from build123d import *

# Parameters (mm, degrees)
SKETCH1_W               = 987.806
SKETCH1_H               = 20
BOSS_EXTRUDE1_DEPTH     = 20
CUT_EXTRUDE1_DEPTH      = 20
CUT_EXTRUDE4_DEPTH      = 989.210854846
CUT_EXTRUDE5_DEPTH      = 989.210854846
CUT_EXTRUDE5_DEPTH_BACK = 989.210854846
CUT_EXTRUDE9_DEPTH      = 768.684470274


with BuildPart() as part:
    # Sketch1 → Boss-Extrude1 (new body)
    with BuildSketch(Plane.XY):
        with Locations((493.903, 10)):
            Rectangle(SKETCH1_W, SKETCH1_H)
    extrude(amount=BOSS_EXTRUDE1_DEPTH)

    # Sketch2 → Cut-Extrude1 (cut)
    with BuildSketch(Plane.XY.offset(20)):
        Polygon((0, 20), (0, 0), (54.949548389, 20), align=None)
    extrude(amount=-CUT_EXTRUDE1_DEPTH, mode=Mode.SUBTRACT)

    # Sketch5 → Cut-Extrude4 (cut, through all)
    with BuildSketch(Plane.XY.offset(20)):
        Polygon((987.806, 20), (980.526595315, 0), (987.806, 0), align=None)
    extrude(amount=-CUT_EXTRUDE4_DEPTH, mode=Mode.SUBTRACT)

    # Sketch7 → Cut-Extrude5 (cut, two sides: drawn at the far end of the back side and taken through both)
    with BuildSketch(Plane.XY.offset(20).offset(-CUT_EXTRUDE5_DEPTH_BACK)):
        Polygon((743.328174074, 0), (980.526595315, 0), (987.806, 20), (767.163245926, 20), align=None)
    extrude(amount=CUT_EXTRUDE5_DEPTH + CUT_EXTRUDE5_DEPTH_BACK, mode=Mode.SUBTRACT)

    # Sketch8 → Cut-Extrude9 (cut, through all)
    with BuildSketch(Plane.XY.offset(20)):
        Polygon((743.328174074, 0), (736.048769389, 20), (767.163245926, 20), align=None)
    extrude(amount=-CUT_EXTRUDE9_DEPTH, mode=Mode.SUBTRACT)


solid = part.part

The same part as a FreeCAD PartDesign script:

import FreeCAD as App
import Part
import Sketcher
from FreeCAD import Vector
Q = App.Units.Quantity


def add_polygon(sketch, points):
    """Adds a closed chain of lines whose ends are joined by coincident constraints."""
    first, n = sketch.GeometryCount, len(points)
    for a, b in zip(points, points[1:] + points[:1]):
        sketch.addGeometry(Part.LineSegment(App.Vector(*a, 0), App.Vector(*b, 0)), False)
    for i in range(n):
        sketch.addConstraint(Sketcher.Constraint("Coincident", first + i, 2, first + (i + 1) % n, 1))

doc = App.newDocument("Part")
params = doc.addObject("Spreadsheet::Sheet", "Params")
for row, (alias, value) in enumerate([
    ("sketch1_height", "20 mm"),
    ("pad1_length", "20 mm"),
    ("sketch2_height", "20 mm"),
    ("pocket1_length", "20 mm"),
    ("sketch3_height", "20 mm"),
], start=1):
    params.set(f"A{row}", alias)
    params.set(f"B{row}", "=" + value)
    params.setAlias(f"B{row}", alias)

body = doc.addObject("PartDesign::Body", "Body")

# Sketch on XY plane
sketch1 = body.newObject("Sketcher::SketchObject", "Sketch")
sketch1.AttachmentSupport = (doc.getObject("XY_Plane"), [""])
sketch1.MapMode = "FlatFace"
add_polygon(sketch1, [(0, 20), (0, 0), (988, 0), (988, 20)])  # lines 0-3
sketch1.addConstraint(Sketcher.Constraint("Vertical", 0))
sketch1.addConstraint(Sketcher.Constraint("Horizontal", 1))
sketch1.addConstraint(Sketcher.Constraint("Vertical", 2))
sketch1.addConstraint(Sketcher.Constraint("Horizontal", 3))
sketch1.addConstraint(Sketcher.Constraint("Coincident", 0, 2, -1, 1))
sketch1.addConstraint(Sketcher.Constraint("DistanceY", 0, 2, 0, 1, Q("20 mm")))
sketch1.addConstraint(Sketcher.Constraint("DistanceX", 1, 1, 1, 2, Q("987.806 mm")))
sketch1.setExpression("Constraints[9]", "Params.sketch1_height")
pad1 = body.newObject("PartDesign::Pad", "Pad")
pad1.Profile = sketch1
pad1.setExpression("Length", "Params.pad1_length")

# Sketch on XY plane
sketch2 = body.newObject("Sketcher::SketchObject", "Sketch001")
sketch2.AttachmentSupport = (doc.getObject("XY_Plane"), [""])
sketch2.MapMode = "FlatFace"
sketch2.AttachmentOffset = App.Placement(Vector(0, 0, 20), App.Rotation())
add_polygon(sketch2, [(0, 20), (0, 0), (55, 20)])  # lines 0-2
sketch2.addConstraint(Sketcher.Constraint("Vertical", 0))
sketch2.addConstraint(Sketcher.Constraint("Horizontal", 2))
sketch2.addConstraint(Sketcher.Constraint("Coincident", 0, 2, -1, 1))
sketch2.addConstraint(Sketcher.Constraint("DistanceY", 0, 2, 0, 1, Q("20 mm")))
sketch2.addConstraint(Sketcher.Constraint("Angle", 1, Q("20 deg")))
sketch2.setExpression("Constraints[6]", "Params.sketch2_height")
pocket1 = body.newObject("PartDesign::Pocket", "Pocket")
pocket1.Profile = sketch2
pocket1.setExpression("Length", "Params.pocket1_length")

# Sketch on XY plane
sketch3 = body.newObject("Sketcher::SketchObject", "Sketch002")
sketch3.AttachmentSupport = (doc.getObject("XY_Plane"), [""])
sketch3.MapMode = "FlatFace"
sketch3.AttachmentOffset = App.Placement(Vector(0, 0, 20), App.Rotation())
add_polygon(sketch3, [(988, 20), (981, 0), (988, 0)])  # lines 0-2
sketch3.addConstraint(Sketcher.Constraint("Horizontal", 1))
sketch3.addConstraint(Sketcher.Constraint("Vertical", 2))
sketch3.addConstraint(Sketcher.Constraint("PointOnObject", 0, 2, -1))
sketch3.addConstraint(Sketcher.Constraint("DistanceY", 2, 1, 2, 2, Q("20 mm")))
sketch3.addConstraint(Sketcher.Constraint("Angle", 0, Q("-110 deg")))
sketch3.addConstraint(Sketcher.Constraint("DistanceX", -1, 1, 1, 2, Q("987.806 mm")))
sketch3.setExpression("Constraints[6]", "Params.sketch3_height")
pocket2 = body.newObject("PartDesign::Pocket", "Pocket001")
pocket2.Profile = sketch3
pocket2.Type = "ThroughAll"

# Sketch on XY plane
sketch4 = body.newObject("Sketcher::SketchObject", "Sketch003")
sketch4.AttachmentSupport = (doc.getObject("XY_Plane"), [""])
sketch4.MapMode = "FlatFace"
sketch4.AttachmentOffset = App.Placement(Vector(0, 0, 20), App.Rotation())
add_polygon(sketch4, [(743, 0), (981, 0), (988, 20), (767, 20)])  # lines 0-3
sketch4.addConstraint(Sketcher.Constraint("Horizontal", 0))
sketch4.addConstraint(Sketcher.Constraint("Horizontal", 2))
sketch4.addConstraint(Sketcher.Constraint("PointOnObject", 0, 2, -1))
sketch4.addConstraint(Sketcher.Constraint("Angle", 1, Q("70 deg")))
sketch4.addConstraint(Sketcher.Constraint("Angle", 3, Q("-140 deg")))
sketch4.addConstraint(Sketcher.Constraint("DistanceY", -1, 1, 1, 2, Q("20 mm")))
sketch4.addConstraint(Sketcher.Constraint("DistanceX", -1, 1, 1, 2, Q("987.806 mm")))
sketch4.addConstraint(Sketcher.Constraint("DistanceX", 0, 1, 0, 2, Q("237.198421 mm")))
pocket3 = body.newObject("PartDesign::Pocket", "Pocket002")
pocket3.Profile = sketch4
pocket3.Type = "ThroughAll"
pocket3.Midplane = True

# Sketch on XY plane
sketch5 = body.newObject("Sketcher::SketchObject", "Sketch004")
sketch5.AttachmentSupport = (doc.getObject("XY_Plane"), [""])
sketch5.MapMode = "FlatFace"
sketch5.AttachmentOffset = App.Placement(Vector(0, 0, 20), App.Rotation())
add_polygon(sketch5, [(736, 20), (743, 0), (767, 20)])  # lines 0-2
sketch5.addConstraint(Sketcher.Constraint("Horizontal", 2))
sketch5.addConstraint(Sketcher.Constraint("PointOnObject", 0, 2, -1))
sketch5.addConstraint(Sketcher.Constraint("Angle", 0, Q("-70 deg")))
sketch5.addConstraint(Sketcher.Constraint("Angle", 1, Q("40 deg")))
sketch5.addConstraint(Sketcher.Constraint("DistanceY", -1, 1, 1, 2, Q("20 mm")))
sketch5.addConstraint(Sketcher.Constraint("DistanceX", -1, 1, 2, 2, Q("736.048769 mm")))
pocket4 = body.newObject("PartDesign::Pocket", "Pocket003")
pocket4.Profile = sketch5
pocket4.Type = "ThroughAll"

doc.recompute()
